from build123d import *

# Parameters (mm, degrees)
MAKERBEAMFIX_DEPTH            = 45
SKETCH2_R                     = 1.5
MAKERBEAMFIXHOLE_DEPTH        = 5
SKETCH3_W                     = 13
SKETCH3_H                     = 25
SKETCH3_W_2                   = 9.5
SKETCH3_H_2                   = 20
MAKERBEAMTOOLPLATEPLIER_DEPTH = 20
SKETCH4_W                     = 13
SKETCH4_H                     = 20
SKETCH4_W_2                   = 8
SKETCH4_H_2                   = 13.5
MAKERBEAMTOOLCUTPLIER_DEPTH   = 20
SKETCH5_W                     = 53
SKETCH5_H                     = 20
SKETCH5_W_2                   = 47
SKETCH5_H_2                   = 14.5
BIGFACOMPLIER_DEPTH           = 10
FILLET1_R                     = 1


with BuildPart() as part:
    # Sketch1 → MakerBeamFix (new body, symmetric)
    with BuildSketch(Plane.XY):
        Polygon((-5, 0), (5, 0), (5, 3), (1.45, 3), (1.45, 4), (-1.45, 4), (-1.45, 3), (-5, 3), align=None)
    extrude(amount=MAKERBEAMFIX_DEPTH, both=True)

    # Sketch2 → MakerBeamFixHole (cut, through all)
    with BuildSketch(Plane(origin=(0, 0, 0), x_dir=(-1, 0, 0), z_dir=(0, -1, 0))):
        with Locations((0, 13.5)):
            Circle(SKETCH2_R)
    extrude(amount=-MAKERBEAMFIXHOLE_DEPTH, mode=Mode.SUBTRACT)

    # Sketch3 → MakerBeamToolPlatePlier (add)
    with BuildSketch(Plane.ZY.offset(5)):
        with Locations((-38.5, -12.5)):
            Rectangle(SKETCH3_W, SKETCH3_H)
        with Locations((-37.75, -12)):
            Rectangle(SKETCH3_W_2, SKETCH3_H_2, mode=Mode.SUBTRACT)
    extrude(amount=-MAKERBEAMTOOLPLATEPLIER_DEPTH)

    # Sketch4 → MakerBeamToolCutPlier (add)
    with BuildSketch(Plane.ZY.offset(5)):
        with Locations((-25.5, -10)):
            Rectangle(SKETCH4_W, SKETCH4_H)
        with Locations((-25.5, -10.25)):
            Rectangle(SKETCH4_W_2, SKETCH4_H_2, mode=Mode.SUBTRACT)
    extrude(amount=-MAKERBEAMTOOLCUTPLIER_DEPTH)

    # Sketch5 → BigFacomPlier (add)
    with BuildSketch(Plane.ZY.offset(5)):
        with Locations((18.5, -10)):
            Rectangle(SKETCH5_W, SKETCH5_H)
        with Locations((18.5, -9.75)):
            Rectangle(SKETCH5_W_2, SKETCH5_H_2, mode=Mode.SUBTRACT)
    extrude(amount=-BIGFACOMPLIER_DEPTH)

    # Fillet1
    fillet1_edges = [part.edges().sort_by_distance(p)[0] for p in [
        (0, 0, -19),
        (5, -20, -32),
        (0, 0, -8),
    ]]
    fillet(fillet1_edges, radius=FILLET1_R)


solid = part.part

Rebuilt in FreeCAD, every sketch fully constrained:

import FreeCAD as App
import Part
import Sketcher


def edges_at(feature, points):
    """Names of the edges that pass closest to the given points."""
    edges = feature.Shape.Edges
    near = lambda p: min(range(len(edges)), key=lambda i: edges[i].distToShape(Part.Vertex(*p))[0])
    return sorted({f"Edge{near(p) + 1}" for p in points})

doc = App.newDocument("Part")
params = doc.addObject("Spreadsheet::Sheet", "Params")
for row, (alias, value) in enumerate([
    ("sketch1_width", "10 mm"),
    ("sketch1_height", "3 mm"),
    ("sketch1_height2", "1 mm"),
    ("sketch1_width2", "2.9 mm"),
    ("pad1_length", "90 mm"),
    ("sketch2_diameter", "3 mm"),
    ("sketch3_width", "25 mm"),
    ("sketch3_width2", "20 mm"),
    ("sketch3_height", "13 mm"),
    ("sketch3_height2", "9.5 mm"),
    ("pad2_length", "20 mm"),
    ("sketch4_width", "20 mm"),
    ("sketch4_height", "13 mm"),
    ("sketch4_height2", "8 mm"),
    ("sketch4_width2", "13.5 mm"),
    ("pad3_length", "20 mm"),
    ("sketch5_width", "20 mm"),
    ("sketch5_height", "53 mm"),
    ("sketch5_height2", "47 mm"),
    ("sketch5_width2", "14.5 mm"),
    ("pad4_length", "10 mm"),
    ("fillet_radius", "1 mm"),
], start=1):
    params.set(f"A{row}", alias)
    params.set(f"B{row}", "=" + value)
    params.setAlias(f"B{row}", alias)

body = doc.addObject("PartDesign::Body", "Body")

sketch1 = body.newObject("Sketcher::SketchObject", "Sketch")
sketch1.AttachmentSupport = (doc.getObject("XY_Plane"), [""])
sketch1.MapMode = "FlatFace"
sketch1.addGeometry(Part.LineSegment(App.Vector(-5, 0, 0), App.Vector(5, 0, 0)), False)
sketch1.addGeometry(Part.LineSegment(App.Vector(5, 0, 0), App.Vector(5, 3, 0)), False)
sketch1.addGeometry(Part.LineSegment(App.Vector(5, 3, 0), App.Vector(1.45, 3, 0)), False)
sketch1.addGeometry(Part.LineSegment(App.Vector(1.45, 3, 0), App.Vector(1.45, 4, 0)), False)
sketch1.addGeometry(Part.LineSegment(App.Vector(1.45, 4, 0), App.Vector(-1.45, 4, 0)), False)
sketch1.addGeometry(Part.LineSegment(App.Vector(-1.45, 4, 0), App.Vector(-1.45, 3, 0)), False)
sketch1.addGeometry(Part.LineSegment(App.Vector(-1.45, 3, 0), App.Vector(-5, 3, 0)), False)
sketch1.addGeometry(Part.LineSegment(App.Vector(-5, 3, 0), App.Vector(-5, 0, 0)), False)
sketch1.addConstraint(Sketcher.Constraint("Coincident", 0, 2, 1, 1))
sketch1.addConstraint(Sketcher.Constraint("Coincident", 1, 2, 2, 1))
sketch1.addConstraint(Sketcher.Constraint("Coincident", 2, 2, 3, 1))
sketch1.addConstraint(Sketcher.Constraint("Coincident", 3, 2, 4, 1))
sketch1.addConstraint(Sketcher.Constraint("Coincident", 4, 2, 5, 1))
sketch1.addConstraint(Sketcher.Constraint("Coincident", 5, 2, 6, 1))
sketch1.addConstraint(Sketcher.Constraint("Coincident", 6, 2, 7, 1))
sketch1.addConstraint(Sketcher.Constraint("Coincident", 7, 2, 0, 1))
sketch1.addConstraint(Sketcher.Constraint("Horizontal", 0))
sketch1.addConstraint(Sketcher.Constraint("Vertical", 1))
sketch1.addConstraint(Sketcher.Constraint("Horizontal", 2))
sketch1.addConstraint(Sketcher.Constraint("Vertical", 3))
sketch1.addConstraint(Sketcher.Constraint("Horizontal", 4))
sketch1.addConstraint(Sketcher.Constraint("Vertical", 5))
sketch1.addConstraint(Sketcher.Constraint("Horizontal", 6))
sketch1.addConstraint(Sketcher.Constraint("Vertical", 7))
sketch1.addConstraint(Sketcher.Constraint("Symmetric", 0, 2, 7, 2, -1, 1))
sketch1.addConstraint(Sketcher.Constraint("Symmetric", 2, 2, 5, 2, -2))
sketch1.addConstraint(Sketcher.Constraint("DistanceX", 0, 1, 0, 2, 10.0))
sketch1.addConstraint(Sketcher.Constraint("DistanceY", 1, 1, 1, 2, 3.0))
sketch1.addConstraint(Sketcher.Constraint("DistanceY", 3, 1, 3, 2, 1.0))
sketch1.addConstraint(Sketcher.Constraint("DistanceX", 4, 2, 4, 1, 2.9))
sketch1.setExpression("Constraints[18]", "Params.sketch1_width")
sketch1.setExpression("Constraints[19]", "Params.sketch1_height")
sketch1.setExpression("Constraints[20]", "Params.sketch1_height2")
sketch1.setExpression("Constraints[21]", "Params.sketch1_width2")
pad1 = body.newObject("PartDesign::Pad", "Pad")
pad1.Profile = sketch1
pad1.setExpression("Length", "Params.pad1_length")
pad1.Midplane = True

sketch2 = body.newObject("Sketcher::SketchObject", "Sketch001")
sketch2.AttachmentSupport = (doc.getObject("XZ_Plane"), [""])
sketch2.MapMode = "FlatFace"
sketch2.addGeometry(Part.Circle(App.Vector(0, -13.5, 0), App.Vector(0, 0, 1), 1.5), False)
sketch2.addConstraint(Sketcher.Constraint("PointOnObject", 0, 3, -2))
sketch2.addConstraint(Sketcher.Constraint("Diameter", 0, 3.0))
sketch2.addConstraint(Sketcher.Constraint("DistanceY", 0, 3, -1, 1, 13.5))
sketch2.setExpression("Constraints[1]", "Params.sketch2_diameter")
pocket1 = body.newObject("PartDesign::Pocket", "Pocket")
pocket1.Profile = sketch2
pocket1.Type = "ThroughAll"

sketch3 = body.newObject("Sketcher::SketchObject", "Sketch002")
sketch3.AttachmentSupport = (doc.getObject("YZ_Plane"), [""])
sketch3.MapMode = "FlatFace"
sketch3.AttachmentOffset = App.Placement(App.Vector(0, 0, -5), App.Rotation())
sketch3.addGeometry(Part.LineSegment(App.Vector(0, -45, 0), App.Vector(-25, -45, 0)), False)
sketch3.addGeometry(Part.LineSegment(App.Vector(-25, -45, 0), App.Vector(-25, -32, 0)), False)
sketch3.addGeometry(Part.LineSegment(App.Vector(-25, -32, 0), App.Vector(0, -32, 0)), False)
sketch3.addGeometry(Part.LineSegment(App.Vector(0, -32, 0), App.Vector(0, -45, 0)), False)
sketch3.addGeometry(Part.LineSegment(App.Vector(-22, -33, 0), App.Vector(-22, -42.5, 0)), False)
sketch3.addGeometry(Part.LineSegment(App.Vector(-22, -42.5, 0), App.Vector(-2, -42.5, 0)), False)
sketch3.addGeometry(Part.LineSegment(App.Vector(-2, -42.5, 0), App.Vector(-2, -33, 0)), False)
sketch3.addGeometry(Part.LineSegment(App.Vector(-2, -33, 0), App.Vector(-22, -33, 0)), False)
sketch3.addConstraint(Sketcher.Constraint("Coincident", 0, 2, 1, 1))
sketch3.addConstraint(Sketcher.Constraint("Coincident", 1, 2, 2, 1))
sketch3.addConstraint(Sketcher.Constraint("Coincident", 2, 2, 3, 1))
sketch3.addConstraint(Sketcher.Constraint("Coincident", 3, 2, 0, 1))
sketch3.addConstraint(Sketcher.Constraint("Coincident", 4, 2, 5, 1))
sketch3.addConstraint(Sketcher.Constraint("Coincident", 5, 2, 6, 1))
sketch3.addConstraint(Sketcher.Constraint("Coincident", 6, 2, 7, 1))
sketch3.addConstraint(Sketcher.Constraint("Coincident", 7, 2, 4, 1))
sketch3.addConstraint(Sketcher.Constraint("Horizontal", 0))
sketch3.addConstraint(Sketcher.Constraint("Vertical", 1))
sketch3.addConstraint(Sketcher.Constraint("Horizontal", 2))
sketch3.addConstraint(Sketcher.Constraint("Vertical", 3))
sketch3.addConstraint(Sketcher.Constraint("Vertical", 4))
sketch3.addConstraint(Sketcher.Constraint("Horizontal", 5))
sketch3.addConstraint(Sketcher.Constraint("Vertical", 6))
sketch3.addConstraint(Sketcher.Constraint("Horizontal", 7))
sketch3.addConstraint(Sketcher.Constraint("PointOnObject", 2, 2, -2))
sketch3.addConstraint(Sketcher.Constraint("DistanceX", 0, 2, 0, 1, 25.0))
sketch3.addConstraint(Sketcher.Constraint("DistanceX", 5, 1, 5, 2, 20.0))
sketch3.addConstraint(Sketcher.Constraint("DistanceY", 1, 1, 1, 2, 13.0))
sketch3.addConstraint(Sketcher.Constraint("DistanceY", 4, 2, 4, 1, 9.5))
sketch3.addConstraint(Sketcher.Constraint("DistanceY", 0, 2, -1, 1, 45.0))
sketch3.addConstraint(Sketcher.Constraint("DistanceX", 4, 2, -1, 1, 22.0))
sketch3.addConstraint(Sketcher.Constraint("DistanceY", 6, 2, -1, 1, 33.0))
sketch3.setExpression("Constraints[17]", "Params.sketch3_width")
sketch3.setExpression("Constraints[18]", "Params.sketch3_width2")
sketch3.setExpression("Constraints[19]", "Params.sketch3_height")
sketch3.setExpression("Constraints[20]", "Params.sketch3_height2")
pad2 = body.newObject("PartDesign::Pad", "Pad001")
pad2.Profile = sketch3
pad2.setExpression("Length", "Params.pad2_length")

sketch4 = body.newObject("Sketcher::SketchObject", "Sketch003")
sketch4.AttachmentSupport = (doc.getObject("YZ_Plane"), [""])
sketch4.MapMode = "FlatFace"
sketch4.AttachmentOffset = App.Placement(App.Vector(0, 0, -5), App.Rotation())
sketch4.addGeometry(Part.LineSegment(App.Vector(0, -32, 0), App.Vector(-20, -32, 0)), False)
sketch4.addGeometry(Part.LineSegment(App.Vector(-20, -32, 0), App.Vector(-20, -19, 0)), False)
sketch4.addGeometry(Part.LineSegment(App.Vector(-20, -19, 0), App.Vector(0, -19, 0)), False)
sketch4.addGeometry(Part.LineSegment(App.Vector(0, -19, 0), App.Vector(0, -32, 0)), False)
sketch4.addGeometry(Part.LineSegment(App.Vector(-17, -21.5, 0), App.Vector(-17, -29.5, 0)), False)
sketch4.addGeometry(Part.LineSegment(App.Vector(-17, -29.5, 0), App.Vector(-3.5, -29.5, 0)), False)
sketch4.addGeometry(Part.LineSegment(App.Vector(-3.5, -29.5, 0), App.Vector(-3.5, -21.5, 0)), False)
sketch4.addGeometry(Part.LineSegment(App.Vector(-3.5, -21.5, 0), App.Vector(-17, -21.5, 0)), False)
sketch4.addConstraint(Sketcher.Constraint("Coincident", 0, 2, 1, 1))
sketch4.addConstraint(Sketcher.Constraint("Coincident", 1, 2, 2, 1))
sketch4.addConstraint(Sketcher.Constraint("Coincident", 2, 2, 3, 1))
sketch4.addConstraint(Sketcher.Constraint("Coincident", 3, 2, 0, 1))
sketch4.addConstraint(Sketcher.Constraint("Coincident", 4, 2, 5, 1))
sketch4.addConstraint(Sketcher.Constraint("Coincident", 5, 2, 6, 1))
sketch4.addConstraint(Sketcher.Constraint("Coincident", 6, 2, 7, 1))
sketch4.addConstraint(Sketcher.Constraint("Coincident", 7, 2, 4, 1))
sketch4.addConstraint(Sketcher.Constraint("Horizontal", 0))
sketch4.addConstraint(Sketcher.Constraint("Vertical", 1))
sketch4.addConstraint(Sketcher.Constraint("Horizontal", 2))
sketch4.addConstraint(Sketcher.Constraint("Vertical", 3))
sketch4.addConstraint(Sketcher.Constraint("Vertical", 4))
sketch4.addConstraint(Sketcher.Constraint("Horizontal", 5))
sketch4.addConstraint(Sketcher.Constraint("Vertical", 6))
sketch4.addConstraint(Sketcher.Constraint("Horizontal", 7))
sketch4.addConstraint(Sketcher.Constraint("PointOnObject", 2, 2, -2))
sketch4.addConstraint(Sketcher.Constraint("DistanceX", 0, 2, 0, 1, 20.0))
sketch4.addConstraint(Sketcher.Constraint("DistanceY", 1, 1, 1, 2, 13.0))
sketch4.addConstraint(Sketcher.Constraint("DistanceY", 4, 2, 4, 1, 8.0))
sketch4.addConstraint(Sketcher.Constraint("DistanceX", 5, 1, 5, 2, 13.5))
sketch4.addConstraint(Sketcher.Constraint("DistanceY", 0, 2, -1, 1, 32.0))
sketch4.addConstraint(Sketcher.Constraint("DistanceX", 4, 2, -1, 1, 17.0))
sketch4.addConstraint(Sketcher.Constraint("DistanceY", 4, 2, -1, 1, 29.5))
sketch4.setExpression("Constraints[17]", "Params.sketch4_width")
sketch4.setExpression("Constraints[18]", "Params.sketch4_height")
sketch4.setExpression("Constraints[19]", "Params.sketch4_height2")
sketch4.setExpression("Constraints[20]", "Params.sketch4_width2")
pad3 = body.newObject("PartDesign::Pad", "Pad002")
pad3.Profile = sketch4
pad3.setExpression("Length", "Params.pad3_length")

sketch5 = body.newObject("Sketcher::SketchObject", "Sketch004")
sketch5.AttachmentSupport = (doc.getObject("YZ_Plane"), [""])
sketch5.MapMode = "FlatFace"
sketch5.AttachmentOffset = App.Placement(App.Vector(0, 0, -5), App.Rotation())
sketch5.addGeometry(Part.LineSegment(App.Vector(0, -8, 0), App.Vector(-20, -8, 0)), False)
sketch5.addGeometry(Part.LineSegment(App.Vector(-20, -8, 0), App.Vector(-20, 45, 0)), False)
sketch5.addGeometry(Part.LineSegment(App.Vector(-20, 45, 0), App.Vector(0, 45, 0)), False)
sketch5.addGeometry(Part.LineSegment(App.Vector(0, 45, 0), App.Vector(0, -8, 0)), False)
sketch5.addGeometry(Part.LineSegment(App.Vector(-17, 42, 0), App.Vector(-17, -5, 0)), False)
sketch5.addGeometry(Part.LineSegment(App.Vector(-17, -5, 0), App.Vector(-2.5, -5, 0)), False)
sketch5.addGeometry(Part.LineSegment(App.Vector(-2.5, -5, 0), App.Vector(-2.5, 42, 0)), False)
sketch5.addGeometry(Part.LineSegment(App.Vector(-2.5, 42, 0), App.Vector(-17, 42, 0)), False)
sketch5.addConstraint(Sketcher.Constraint("Coincident", 0, 2, 1, 1))
sketch5.addConstraint(Sketcher.Constraint("Coincident", 1, 2, 2, 1))
sketch5.addConstraint(Sketcher.Constraint("Coincident", 2, 2, 3, 1))
sketch5.addConstraint(Sketcher.Constraint("Coincident", 3, 2, 0, 1))
sketch5.addConstraint(Sketcher.Constraint("Coincident", 4, 2, 5, 1))
sketch5.addConstraint(Sketcher.Constraint("Coincident", 5, 2, 6, 1))
sketch5.addConstraint(Sketcher.Constraint("Coincident", 6, 2, 7, 1))
sketch5.addConstraint(Sketcher.Constraint("Coincident", 7, 2, 4, 1))
sketch5.addConstraint(Sketcher.Constraint("Horizontal", 0))
sketch5.addConstraint(Sketcher.Constraint("Vertical", 1))
sketch5.addConstraint(Sketcher.Constraint("Horizontal", 2))
sketch5.addConstraint(Sketcher.Constraint("Vertical", 3))
sketch5.addConstraint(Sketcher.Constraint("Vertical", 4))
sketch5.addConstraint(Sketcher.Constraint("Horizontal", 5))
sketch5.addConstraint(Sketcher.Constraint("Vertical", 6))
sketch5.addConstraint(Sketcher.Constraint("Horizontal", 7))
sketch5.addConstraint(Sketcher.Constraint("PointOnObject", 2, 2, -2))
sketch5.addConstraint(Sketcher.Constraint("DistanceX", 0, 2, 0, 1, 20.0))
sketch5.addConstraint(Sketcher.Constraint("DistanceY", 1, 1, 1, 2, 53.0))
sketch5.addConstraint(Sketcher.Constraint("DistanceY", 4, 2, 4, 1, 47.0))
sketch5.addConstraint(Sketcher.Constraint("DistanceX", 5, 1, 5, 2, 14.5))
sketch5.addConstraint(Sketcher.Constraint("DistanceY", 0, 2, -1, 1, 8.0))
sketch5.addConstraint(Sketcher.Constraint("DistanceX", 4, 2, -1, 1, 17.0))
sketch5.addConstraint(Sketcher.Constraint("DistanceY", 4, 2, -1, 1, 5.0))
sketch5.setExpression("Constraints[17]", "Params.sketch5_width")
sketch5.setExpression("Constraints[18]", "Params.sketch5_height")
sketch5.setExpression("Constraints[19]", "Params.sketch5_height2")
sketch5.setExpression("Constraints[20]", "Params.sketch5_width2")
pad4 = body.newObject("PartDesign::Pad", "Pad003")
pad4.Profile = sketch5
pad4.setExpression("Length", "Params.pad4_length")
doc.recompute()

fillet = body.newObject("PartDesign::Fillet", "Fillet")
fillet.Base = (pad4, edges_at(pad4, [(0, 0, -19), (5, -20, -32), (0, 0, -8)]))
fillet.setExpression("Radius", "Params.fillet_radius")

doc.recompute()
